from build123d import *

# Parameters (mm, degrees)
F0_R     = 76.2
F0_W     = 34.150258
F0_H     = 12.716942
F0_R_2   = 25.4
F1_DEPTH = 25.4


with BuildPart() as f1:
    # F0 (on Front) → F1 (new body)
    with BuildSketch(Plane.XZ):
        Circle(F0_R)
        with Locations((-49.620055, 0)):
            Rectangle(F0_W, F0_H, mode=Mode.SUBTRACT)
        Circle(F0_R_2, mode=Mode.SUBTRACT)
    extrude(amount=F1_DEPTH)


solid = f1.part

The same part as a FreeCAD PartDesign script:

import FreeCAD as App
import Part
import Sketcher

V = App.Vector
Q = App.Units.Quantity

doc = App.newDocument("Part")
body = doc.addObject("PartDesign::Body", "Body")

sketch1 = body.newObject("Sketcher::SketchObject", "Sketch")
sketch1.AttachmentSupport = (doc.getObject("XZ_Plane"), [""])
sketch1.MapMode = "FlatFace"
sketch1.addGeometry([
    Part.Circle(V(0, 0, 0), V(0, 0, 1), 76),
    Part.LineSegment(V(-33, -6, 0), V(-67, -6, 0)),
    Part.LineSegment(V(-67, -6, 0), V(-67, 6, 0)),
    Part.LineSegment(V(-67, 6, 0), V(-33, 6, 0)),
    Part.LineSegment(V(-33, 6, 0), V(-33, -6, 0)),
    Part.Circle(V(0, 0, 0), V(0, 0, 1), 25),
], False)
sketch1.addConstraint([
    Sketcher.Constraint("Coincident", 1, 2, 2, 1),
    Sketcher.Constraint("Coincident", 2, 2, 3, 1),
    Sketcher.Constraint("Coincident", 3, 2, 4, 1),
    Sketcher.Constraint("Coincident", 4, 2, 1, 1),
    Sketcher.Constraint("Horizontal", 1),
    Sketcher.Constraint("Vertical", 2),
    Sketcher.Constraint("Horizontal", 3),
    Sketcher.Constraint("Vertical", 4),
    Sketcher.Constraint("Coincident", 0, 3, -1, 1),
    Sketcher.Constraint("Coincident", 5, 3, -1, 1),
    Sketcher.Constraint("Diameter", 0, Q("6 in")),
    Sketcher.Constraint("Diameter", 5, Q("2 in")),
    Sketcher.Constraint("DistanceX", 1, 2, 1, 1, 34.150258),
    Sketcher.Constraint("DistanceY", 2, 1, 2, 2, 12.716942),
    Sketcher.Constraint("DistanceY", 1, 2, -1, 1, 6.358471),
    Sketcher.Constraint("DistanceX", 1, 2, -1, 1, 66.695184),
])
pad1 = body.newObject("PartDesign::Pad", "Pad")
pad1.Profile = sketch1
pad1.Length = Q("1 in")

doc.recompute()
